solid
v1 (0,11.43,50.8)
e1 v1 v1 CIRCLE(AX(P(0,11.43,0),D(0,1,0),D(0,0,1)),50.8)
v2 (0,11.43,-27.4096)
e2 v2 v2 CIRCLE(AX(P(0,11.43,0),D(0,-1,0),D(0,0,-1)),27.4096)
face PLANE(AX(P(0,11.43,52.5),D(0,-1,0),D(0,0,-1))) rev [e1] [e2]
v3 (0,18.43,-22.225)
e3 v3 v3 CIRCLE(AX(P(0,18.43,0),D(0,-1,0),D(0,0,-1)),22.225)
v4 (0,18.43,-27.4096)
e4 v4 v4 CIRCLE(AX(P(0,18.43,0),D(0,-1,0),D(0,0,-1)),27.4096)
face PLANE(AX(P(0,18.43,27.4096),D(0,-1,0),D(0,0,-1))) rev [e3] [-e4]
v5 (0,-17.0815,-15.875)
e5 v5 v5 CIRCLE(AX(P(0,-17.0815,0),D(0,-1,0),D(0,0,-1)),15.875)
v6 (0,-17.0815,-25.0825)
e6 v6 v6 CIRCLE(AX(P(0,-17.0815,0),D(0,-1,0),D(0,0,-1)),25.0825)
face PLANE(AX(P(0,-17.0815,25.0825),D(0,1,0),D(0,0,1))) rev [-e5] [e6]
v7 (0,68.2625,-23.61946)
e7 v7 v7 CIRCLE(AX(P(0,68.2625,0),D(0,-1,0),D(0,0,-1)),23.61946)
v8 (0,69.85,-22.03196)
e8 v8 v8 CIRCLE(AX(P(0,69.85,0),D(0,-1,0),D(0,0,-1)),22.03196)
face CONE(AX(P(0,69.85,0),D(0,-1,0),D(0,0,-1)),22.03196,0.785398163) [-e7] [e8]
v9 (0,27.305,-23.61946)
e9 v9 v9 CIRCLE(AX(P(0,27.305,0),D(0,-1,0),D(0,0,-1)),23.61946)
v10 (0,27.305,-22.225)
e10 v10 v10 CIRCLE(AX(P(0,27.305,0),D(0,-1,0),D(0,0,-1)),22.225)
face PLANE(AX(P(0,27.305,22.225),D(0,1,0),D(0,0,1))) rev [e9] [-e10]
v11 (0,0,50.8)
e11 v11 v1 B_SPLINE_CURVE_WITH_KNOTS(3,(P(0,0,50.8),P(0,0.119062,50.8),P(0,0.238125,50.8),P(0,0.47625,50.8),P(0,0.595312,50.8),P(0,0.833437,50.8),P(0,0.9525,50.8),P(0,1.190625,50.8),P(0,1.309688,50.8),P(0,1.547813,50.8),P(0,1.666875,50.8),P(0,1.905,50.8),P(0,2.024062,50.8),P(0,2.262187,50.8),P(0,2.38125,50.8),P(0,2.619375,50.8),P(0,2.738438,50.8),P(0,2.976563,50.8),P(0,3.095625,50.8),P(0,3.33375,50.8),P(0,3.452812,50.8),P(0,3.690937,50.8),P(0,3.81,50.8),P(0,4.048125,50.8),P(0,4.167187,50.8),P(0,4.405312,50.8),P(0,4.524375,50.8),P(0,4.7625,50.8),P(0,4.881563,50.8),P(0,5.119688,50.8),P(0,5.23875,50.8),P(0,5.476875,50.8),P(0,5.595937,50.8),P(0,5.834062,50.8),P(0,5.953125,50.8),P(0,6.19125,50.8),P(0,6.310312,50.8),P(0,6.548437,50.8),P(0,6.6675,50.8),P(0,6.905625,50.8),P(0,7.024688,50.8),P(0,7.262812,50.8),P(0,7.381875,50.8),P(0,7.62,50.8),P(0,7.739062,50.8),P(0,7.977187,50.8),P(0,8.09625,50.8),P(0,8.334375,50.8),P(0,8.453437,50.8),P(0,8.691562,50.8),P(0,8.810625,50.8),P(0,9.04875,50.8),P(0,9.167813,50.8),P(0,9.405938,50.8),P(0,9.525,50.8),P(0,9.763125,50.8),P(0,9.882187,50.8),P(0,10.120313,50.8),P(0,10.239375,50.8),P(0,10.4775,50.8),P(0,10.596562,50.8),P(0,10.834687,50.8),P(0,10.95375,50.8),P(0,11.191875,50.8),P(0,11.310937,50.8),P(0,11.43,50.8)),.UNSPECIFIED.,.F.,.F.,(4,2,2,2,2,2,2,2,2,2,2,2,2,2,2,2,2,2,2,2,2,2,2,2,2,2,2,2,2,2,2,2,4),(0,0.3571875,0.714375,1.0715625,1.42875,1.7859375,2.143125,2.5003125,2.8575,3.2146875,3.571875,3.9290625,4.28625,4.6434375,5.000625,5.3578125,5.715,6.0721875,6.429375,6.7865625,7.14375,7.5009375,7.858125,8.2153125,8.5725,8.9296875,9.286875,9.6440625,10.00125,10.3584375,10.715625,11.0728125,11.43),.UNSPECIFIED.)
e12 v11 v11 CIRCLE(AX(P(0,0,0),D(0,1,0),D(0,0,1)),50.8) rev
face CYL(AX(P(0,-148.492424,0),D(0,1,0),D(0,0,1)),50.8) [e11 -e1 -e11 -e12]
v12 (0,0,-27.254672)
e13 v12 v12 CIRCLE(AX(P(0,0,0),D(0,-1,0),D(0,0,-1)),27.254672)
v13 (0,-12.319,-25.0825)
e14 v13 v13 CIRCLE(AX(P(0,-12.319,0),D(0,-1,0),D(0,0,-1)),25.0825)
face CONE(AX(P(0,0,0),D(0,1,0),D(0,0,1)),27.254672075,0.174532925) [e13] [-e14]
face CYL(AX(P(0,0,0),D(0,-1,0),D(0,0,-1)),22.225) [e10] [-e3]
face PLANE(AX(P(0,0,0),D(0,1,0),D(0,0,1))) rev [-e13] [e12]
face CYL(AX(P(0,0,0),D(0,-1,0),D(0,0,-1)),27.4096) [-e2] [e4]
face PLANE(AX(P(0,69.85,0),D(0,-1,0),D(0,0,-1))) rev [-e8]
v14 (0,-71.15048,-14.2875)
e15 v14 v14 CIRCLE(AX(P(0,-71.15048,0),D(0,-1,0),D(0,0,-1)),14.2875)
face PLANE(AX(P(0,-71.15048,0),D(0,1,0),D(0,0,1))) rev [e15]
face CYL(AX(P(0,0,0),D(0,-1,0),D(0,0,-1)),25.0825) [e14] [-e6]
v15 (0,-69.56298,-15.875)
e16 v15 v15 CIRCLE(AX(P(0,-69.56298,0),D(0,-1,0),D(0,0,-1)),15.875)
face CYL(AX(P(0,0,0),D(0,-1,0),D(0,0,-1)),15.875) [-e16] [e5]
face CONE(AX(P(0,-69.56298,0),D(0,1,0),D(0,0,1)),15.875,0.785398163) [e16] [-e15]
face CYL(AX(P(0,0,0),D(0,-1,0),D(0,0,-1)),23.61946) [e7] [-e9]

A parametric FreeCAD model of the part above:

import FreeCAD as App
import Part
import Sketcher

V = App.Vector
Q = App.Units.Quantity


def add_polygon(sketch, points):
    """Adds a closed chain of lines whose ends are joined by coincident constraints."""
    first, n = sketch.GeometryCount, len(points)
    for a, b in zip(points, points[1:] + points[:1]):
        sketch.addGeometry(Part.LineSegment(App.Vector(*a, 0), App.Vector(*b, 0)), False)
    for i in range(n):
        sketch.addConstraint(Sketcher.Constraint("Coincident", first + i, 2, first + (i + 1) % n, 1))

doc = App.newDocument("Part")
params = doc.addObject("Spreadsheet::Sheet", "Params")
for row, (alias, value) in enumerate([
    ("sketch1_width", "0.1875 in"),
    ("sketch1_height", "0.5625 in"),
    ("revolution_angle", "360 deg"),
    ("sketch2_width", "2.75 in"),
    ("sketch2_width2", "0.45 in"),
    ("revolution2_angle", "360 deg"),
    ("sketch3_diameter", "4 in"),
    ("pocket1_length", "0.45 in"),
], start=1):
    params.set(f"A{row}", alias)
    params.set(f"B{row}", "=" + value)
    params.setAlias(f"B{row}", alias)

body = doc.addObject("PartDesign::Body", "Body")

# Sketch on YZ plane
sketch1 = doc.addObject("Sketcher::SketchObject", "Sketch")
body.addObject(sketch1)
sketch1.AttachmentSupport = (doc.YZ_Plane, [""])
sketch1.MapMode = "FlatFace"
add_polygon(sketch1, [(0, 0), (0, 27.3), (-12.3, 25.1), (-17.1, 25.1), (-17.1, 15.9), (-69.6, 15.9), (-71.2, 14.3), (-71.2, 0)])  # lines 0-7
sketch1.addConstraint([
    Sketcher.Constraint("Vertical", 0),
    Sketcher.Constraint("Horizontal", 2),
    Sketcher.Constraint("Vertical", 3),
    Sketcher.Constraint("Horizontal", 4),
    Sketcher.Constraint("Vertical", 6),
    Sketcher.Constraint("Horizontal", 7),
    Sketcher.Constraint("Coincident", 7, 2, -1, 1),
    Sketcher.Constraint("Angle", 1, Q("-170 deg")),
    Sketcher.Constraint("Angle", 5, Q("-135 deg")),
    Sketcher.Constraint("DistanceX", 2, 2, 2, 1, Q("0.1875 in")),
    Sketcher.Constraint("DistanceY", 6, 2, 6, 1, Q("0.5625 in")),
    Sketcher.Constraint("DistanceX", 4, 2, 4, 1, Q("2.0662 in")),
    Sketcher.Constraint("DistanceX", 7, 1, 7, 2, Q("2.8012 in")),
    Sketcher.Constraint("DistanceY", 3, 2, 3, 1, Q("0.3625 in")),
    Sketcher.Constraint("DistanceX", 1, 2, -1, 1, Q("0.485 in")),
])
sketch1.setExpression("Constraints[17]", "Params.sketch1_width")
sketch1.setExpression("Constraints[18]", "Params.sketch1_height")
revolution = doc.addObject("PartDesign::Revolution", "Revolution")
body.addObject(revolution)
revolution.Profile = sketch1
revolution.ReferenceAxis = (sketch1, ["H_Axis"])
revolution.setExpression("Angle", "Params.revolution_angle")

# Sketch on YZ plane
sketch2 = doc.addObject("Sketcher::SketchObject", "Sketch001")
body.addObject(sketch2)
sketch2.AttachmentSupport = (doc.YZ_Plane, [""])
sketch2.MapMode = "FlatFace"
add_polygon(sketch2, [(0, 52.5), (0, 0), (69.8, 0), (69.8, 22), (68.3, 23.6), (27.3, 23.6), (27.3, 22.2), (18.4, 22.2), (18.4, 27.4), (11.4, 27.4), (11.4, 52.5)])  # lines 0-10
sketch2.addConstraint([
    Sketcher.Constraint("Vertical", 0),
    Sketcher.Constraint("Horizontal", 1),
    Sketcher.Constraint("Vertical", 2),
    Sketcher.Constraint("Horizontal", 4),
    Sketcher.Constraint("Vertical", 5),
    Sketcher.Constraint("Horizontal", 6),
    Sketcher.Constraint("Vertical", 7),
    Sketcher.Constraint("Horizontal", 8),
    Sketcher.Constraint("Vertical", 9),
    Sketcher.Constraint("Horizontal", 10),
    Sketcher.Constraint("Coincident", 0, 2, -1, 1),
    Sketcher.Constraint("Angle", 3, Q("135 deg")),
    Sketcher.Constraint("DistanceX", 1, 1, 1, 2, Q("2.75 in")),
    Sketcher.Constraint("DistanceX", 10, 2, 10, 1, Q("0.45 in")),
    Sketcher.Constraint("DistanceX", 4, 2, 4, 1, Q("1.6125 in")),
    Sketcher.Constraint("DistanceY", 2, 1, 2, 2, Q("0.8674 in")),
    Sketcher.Constraint("DistanceY", 5, 2, 5, 1, Q("0.0549 in")),
    Sketcher.Constraint("DistanceX", -1, 1, 3, 2, Q("2.6875 in")),
    Sketcher.Constraint("DistanceX", 6, 2, 6, 1, Q("8.875 mm")),
    Sketcher.Constraint("DistanceY", 0, 2, 0, 1, Q("52.5 mm")),
    Sketcher.Constraint("DistanceY", 7, 1, 7, 2, Q("5.1846 mm")),
])
sketch2.setExpression("Constraints[23]", "Params.sketch2_width")
sketch2.setExpression("Constraints[24]", "Params.sketch2_width2")
revolution2 = doc.addObject("PartDesign::Revolution", "Revolution001")
body.addObject(revolution2)
revolution2.Profile = sketch2
revolution2.ReferenceAxis = (sketch2, ["H_Axis"])
revolution2.setExpression("Angle", "Params.revolution2_angle")

# Sketch on XZ plane
sketch3 = doc.addObject("Sketcher::SketchObject", "Sketch002")
body.addObject(sketch3)
sketch3.AttachmentSupport = (doc.XZ_Plane, [""])
sketch3.MapMode = "FlatFace"
sketch3.AttachmentOffset = App.Placement(V(0, 0, -0.45 * 25.4), App.Rotation())
sketch3.addGeometry([
    Part.Circle(V(0, 0, 0), V(0, 0, 1), 52),
    Part.Circle(V(0, 0, 0), V(0, 0, 1), 51),
], False)
sketch3.addConstraint([
    Sketcher.Constraint("Coincident", 0, 3, -1, 1),
    Sketcher.Constraint("Coincident", 1, 3, -1, 1),
    Sketcher.Constraint("Diameter", 1, Q("4 in")),
    Sketcher.Constraint("Diameter", 0, Q("105 mm")),
])
sketch3.setExpression("Constraints[2]", "Params.sketch3_diameter")
pocket1 = doc.addObject("PartDesign::Pocket", "Pocket")
body.addObject(pocket1)
pocket1.Profile = sketch3
pocket1.setExpression("Length", "Params.pocket1_length")
pocket1.Reversed = True

doc.recompute()
